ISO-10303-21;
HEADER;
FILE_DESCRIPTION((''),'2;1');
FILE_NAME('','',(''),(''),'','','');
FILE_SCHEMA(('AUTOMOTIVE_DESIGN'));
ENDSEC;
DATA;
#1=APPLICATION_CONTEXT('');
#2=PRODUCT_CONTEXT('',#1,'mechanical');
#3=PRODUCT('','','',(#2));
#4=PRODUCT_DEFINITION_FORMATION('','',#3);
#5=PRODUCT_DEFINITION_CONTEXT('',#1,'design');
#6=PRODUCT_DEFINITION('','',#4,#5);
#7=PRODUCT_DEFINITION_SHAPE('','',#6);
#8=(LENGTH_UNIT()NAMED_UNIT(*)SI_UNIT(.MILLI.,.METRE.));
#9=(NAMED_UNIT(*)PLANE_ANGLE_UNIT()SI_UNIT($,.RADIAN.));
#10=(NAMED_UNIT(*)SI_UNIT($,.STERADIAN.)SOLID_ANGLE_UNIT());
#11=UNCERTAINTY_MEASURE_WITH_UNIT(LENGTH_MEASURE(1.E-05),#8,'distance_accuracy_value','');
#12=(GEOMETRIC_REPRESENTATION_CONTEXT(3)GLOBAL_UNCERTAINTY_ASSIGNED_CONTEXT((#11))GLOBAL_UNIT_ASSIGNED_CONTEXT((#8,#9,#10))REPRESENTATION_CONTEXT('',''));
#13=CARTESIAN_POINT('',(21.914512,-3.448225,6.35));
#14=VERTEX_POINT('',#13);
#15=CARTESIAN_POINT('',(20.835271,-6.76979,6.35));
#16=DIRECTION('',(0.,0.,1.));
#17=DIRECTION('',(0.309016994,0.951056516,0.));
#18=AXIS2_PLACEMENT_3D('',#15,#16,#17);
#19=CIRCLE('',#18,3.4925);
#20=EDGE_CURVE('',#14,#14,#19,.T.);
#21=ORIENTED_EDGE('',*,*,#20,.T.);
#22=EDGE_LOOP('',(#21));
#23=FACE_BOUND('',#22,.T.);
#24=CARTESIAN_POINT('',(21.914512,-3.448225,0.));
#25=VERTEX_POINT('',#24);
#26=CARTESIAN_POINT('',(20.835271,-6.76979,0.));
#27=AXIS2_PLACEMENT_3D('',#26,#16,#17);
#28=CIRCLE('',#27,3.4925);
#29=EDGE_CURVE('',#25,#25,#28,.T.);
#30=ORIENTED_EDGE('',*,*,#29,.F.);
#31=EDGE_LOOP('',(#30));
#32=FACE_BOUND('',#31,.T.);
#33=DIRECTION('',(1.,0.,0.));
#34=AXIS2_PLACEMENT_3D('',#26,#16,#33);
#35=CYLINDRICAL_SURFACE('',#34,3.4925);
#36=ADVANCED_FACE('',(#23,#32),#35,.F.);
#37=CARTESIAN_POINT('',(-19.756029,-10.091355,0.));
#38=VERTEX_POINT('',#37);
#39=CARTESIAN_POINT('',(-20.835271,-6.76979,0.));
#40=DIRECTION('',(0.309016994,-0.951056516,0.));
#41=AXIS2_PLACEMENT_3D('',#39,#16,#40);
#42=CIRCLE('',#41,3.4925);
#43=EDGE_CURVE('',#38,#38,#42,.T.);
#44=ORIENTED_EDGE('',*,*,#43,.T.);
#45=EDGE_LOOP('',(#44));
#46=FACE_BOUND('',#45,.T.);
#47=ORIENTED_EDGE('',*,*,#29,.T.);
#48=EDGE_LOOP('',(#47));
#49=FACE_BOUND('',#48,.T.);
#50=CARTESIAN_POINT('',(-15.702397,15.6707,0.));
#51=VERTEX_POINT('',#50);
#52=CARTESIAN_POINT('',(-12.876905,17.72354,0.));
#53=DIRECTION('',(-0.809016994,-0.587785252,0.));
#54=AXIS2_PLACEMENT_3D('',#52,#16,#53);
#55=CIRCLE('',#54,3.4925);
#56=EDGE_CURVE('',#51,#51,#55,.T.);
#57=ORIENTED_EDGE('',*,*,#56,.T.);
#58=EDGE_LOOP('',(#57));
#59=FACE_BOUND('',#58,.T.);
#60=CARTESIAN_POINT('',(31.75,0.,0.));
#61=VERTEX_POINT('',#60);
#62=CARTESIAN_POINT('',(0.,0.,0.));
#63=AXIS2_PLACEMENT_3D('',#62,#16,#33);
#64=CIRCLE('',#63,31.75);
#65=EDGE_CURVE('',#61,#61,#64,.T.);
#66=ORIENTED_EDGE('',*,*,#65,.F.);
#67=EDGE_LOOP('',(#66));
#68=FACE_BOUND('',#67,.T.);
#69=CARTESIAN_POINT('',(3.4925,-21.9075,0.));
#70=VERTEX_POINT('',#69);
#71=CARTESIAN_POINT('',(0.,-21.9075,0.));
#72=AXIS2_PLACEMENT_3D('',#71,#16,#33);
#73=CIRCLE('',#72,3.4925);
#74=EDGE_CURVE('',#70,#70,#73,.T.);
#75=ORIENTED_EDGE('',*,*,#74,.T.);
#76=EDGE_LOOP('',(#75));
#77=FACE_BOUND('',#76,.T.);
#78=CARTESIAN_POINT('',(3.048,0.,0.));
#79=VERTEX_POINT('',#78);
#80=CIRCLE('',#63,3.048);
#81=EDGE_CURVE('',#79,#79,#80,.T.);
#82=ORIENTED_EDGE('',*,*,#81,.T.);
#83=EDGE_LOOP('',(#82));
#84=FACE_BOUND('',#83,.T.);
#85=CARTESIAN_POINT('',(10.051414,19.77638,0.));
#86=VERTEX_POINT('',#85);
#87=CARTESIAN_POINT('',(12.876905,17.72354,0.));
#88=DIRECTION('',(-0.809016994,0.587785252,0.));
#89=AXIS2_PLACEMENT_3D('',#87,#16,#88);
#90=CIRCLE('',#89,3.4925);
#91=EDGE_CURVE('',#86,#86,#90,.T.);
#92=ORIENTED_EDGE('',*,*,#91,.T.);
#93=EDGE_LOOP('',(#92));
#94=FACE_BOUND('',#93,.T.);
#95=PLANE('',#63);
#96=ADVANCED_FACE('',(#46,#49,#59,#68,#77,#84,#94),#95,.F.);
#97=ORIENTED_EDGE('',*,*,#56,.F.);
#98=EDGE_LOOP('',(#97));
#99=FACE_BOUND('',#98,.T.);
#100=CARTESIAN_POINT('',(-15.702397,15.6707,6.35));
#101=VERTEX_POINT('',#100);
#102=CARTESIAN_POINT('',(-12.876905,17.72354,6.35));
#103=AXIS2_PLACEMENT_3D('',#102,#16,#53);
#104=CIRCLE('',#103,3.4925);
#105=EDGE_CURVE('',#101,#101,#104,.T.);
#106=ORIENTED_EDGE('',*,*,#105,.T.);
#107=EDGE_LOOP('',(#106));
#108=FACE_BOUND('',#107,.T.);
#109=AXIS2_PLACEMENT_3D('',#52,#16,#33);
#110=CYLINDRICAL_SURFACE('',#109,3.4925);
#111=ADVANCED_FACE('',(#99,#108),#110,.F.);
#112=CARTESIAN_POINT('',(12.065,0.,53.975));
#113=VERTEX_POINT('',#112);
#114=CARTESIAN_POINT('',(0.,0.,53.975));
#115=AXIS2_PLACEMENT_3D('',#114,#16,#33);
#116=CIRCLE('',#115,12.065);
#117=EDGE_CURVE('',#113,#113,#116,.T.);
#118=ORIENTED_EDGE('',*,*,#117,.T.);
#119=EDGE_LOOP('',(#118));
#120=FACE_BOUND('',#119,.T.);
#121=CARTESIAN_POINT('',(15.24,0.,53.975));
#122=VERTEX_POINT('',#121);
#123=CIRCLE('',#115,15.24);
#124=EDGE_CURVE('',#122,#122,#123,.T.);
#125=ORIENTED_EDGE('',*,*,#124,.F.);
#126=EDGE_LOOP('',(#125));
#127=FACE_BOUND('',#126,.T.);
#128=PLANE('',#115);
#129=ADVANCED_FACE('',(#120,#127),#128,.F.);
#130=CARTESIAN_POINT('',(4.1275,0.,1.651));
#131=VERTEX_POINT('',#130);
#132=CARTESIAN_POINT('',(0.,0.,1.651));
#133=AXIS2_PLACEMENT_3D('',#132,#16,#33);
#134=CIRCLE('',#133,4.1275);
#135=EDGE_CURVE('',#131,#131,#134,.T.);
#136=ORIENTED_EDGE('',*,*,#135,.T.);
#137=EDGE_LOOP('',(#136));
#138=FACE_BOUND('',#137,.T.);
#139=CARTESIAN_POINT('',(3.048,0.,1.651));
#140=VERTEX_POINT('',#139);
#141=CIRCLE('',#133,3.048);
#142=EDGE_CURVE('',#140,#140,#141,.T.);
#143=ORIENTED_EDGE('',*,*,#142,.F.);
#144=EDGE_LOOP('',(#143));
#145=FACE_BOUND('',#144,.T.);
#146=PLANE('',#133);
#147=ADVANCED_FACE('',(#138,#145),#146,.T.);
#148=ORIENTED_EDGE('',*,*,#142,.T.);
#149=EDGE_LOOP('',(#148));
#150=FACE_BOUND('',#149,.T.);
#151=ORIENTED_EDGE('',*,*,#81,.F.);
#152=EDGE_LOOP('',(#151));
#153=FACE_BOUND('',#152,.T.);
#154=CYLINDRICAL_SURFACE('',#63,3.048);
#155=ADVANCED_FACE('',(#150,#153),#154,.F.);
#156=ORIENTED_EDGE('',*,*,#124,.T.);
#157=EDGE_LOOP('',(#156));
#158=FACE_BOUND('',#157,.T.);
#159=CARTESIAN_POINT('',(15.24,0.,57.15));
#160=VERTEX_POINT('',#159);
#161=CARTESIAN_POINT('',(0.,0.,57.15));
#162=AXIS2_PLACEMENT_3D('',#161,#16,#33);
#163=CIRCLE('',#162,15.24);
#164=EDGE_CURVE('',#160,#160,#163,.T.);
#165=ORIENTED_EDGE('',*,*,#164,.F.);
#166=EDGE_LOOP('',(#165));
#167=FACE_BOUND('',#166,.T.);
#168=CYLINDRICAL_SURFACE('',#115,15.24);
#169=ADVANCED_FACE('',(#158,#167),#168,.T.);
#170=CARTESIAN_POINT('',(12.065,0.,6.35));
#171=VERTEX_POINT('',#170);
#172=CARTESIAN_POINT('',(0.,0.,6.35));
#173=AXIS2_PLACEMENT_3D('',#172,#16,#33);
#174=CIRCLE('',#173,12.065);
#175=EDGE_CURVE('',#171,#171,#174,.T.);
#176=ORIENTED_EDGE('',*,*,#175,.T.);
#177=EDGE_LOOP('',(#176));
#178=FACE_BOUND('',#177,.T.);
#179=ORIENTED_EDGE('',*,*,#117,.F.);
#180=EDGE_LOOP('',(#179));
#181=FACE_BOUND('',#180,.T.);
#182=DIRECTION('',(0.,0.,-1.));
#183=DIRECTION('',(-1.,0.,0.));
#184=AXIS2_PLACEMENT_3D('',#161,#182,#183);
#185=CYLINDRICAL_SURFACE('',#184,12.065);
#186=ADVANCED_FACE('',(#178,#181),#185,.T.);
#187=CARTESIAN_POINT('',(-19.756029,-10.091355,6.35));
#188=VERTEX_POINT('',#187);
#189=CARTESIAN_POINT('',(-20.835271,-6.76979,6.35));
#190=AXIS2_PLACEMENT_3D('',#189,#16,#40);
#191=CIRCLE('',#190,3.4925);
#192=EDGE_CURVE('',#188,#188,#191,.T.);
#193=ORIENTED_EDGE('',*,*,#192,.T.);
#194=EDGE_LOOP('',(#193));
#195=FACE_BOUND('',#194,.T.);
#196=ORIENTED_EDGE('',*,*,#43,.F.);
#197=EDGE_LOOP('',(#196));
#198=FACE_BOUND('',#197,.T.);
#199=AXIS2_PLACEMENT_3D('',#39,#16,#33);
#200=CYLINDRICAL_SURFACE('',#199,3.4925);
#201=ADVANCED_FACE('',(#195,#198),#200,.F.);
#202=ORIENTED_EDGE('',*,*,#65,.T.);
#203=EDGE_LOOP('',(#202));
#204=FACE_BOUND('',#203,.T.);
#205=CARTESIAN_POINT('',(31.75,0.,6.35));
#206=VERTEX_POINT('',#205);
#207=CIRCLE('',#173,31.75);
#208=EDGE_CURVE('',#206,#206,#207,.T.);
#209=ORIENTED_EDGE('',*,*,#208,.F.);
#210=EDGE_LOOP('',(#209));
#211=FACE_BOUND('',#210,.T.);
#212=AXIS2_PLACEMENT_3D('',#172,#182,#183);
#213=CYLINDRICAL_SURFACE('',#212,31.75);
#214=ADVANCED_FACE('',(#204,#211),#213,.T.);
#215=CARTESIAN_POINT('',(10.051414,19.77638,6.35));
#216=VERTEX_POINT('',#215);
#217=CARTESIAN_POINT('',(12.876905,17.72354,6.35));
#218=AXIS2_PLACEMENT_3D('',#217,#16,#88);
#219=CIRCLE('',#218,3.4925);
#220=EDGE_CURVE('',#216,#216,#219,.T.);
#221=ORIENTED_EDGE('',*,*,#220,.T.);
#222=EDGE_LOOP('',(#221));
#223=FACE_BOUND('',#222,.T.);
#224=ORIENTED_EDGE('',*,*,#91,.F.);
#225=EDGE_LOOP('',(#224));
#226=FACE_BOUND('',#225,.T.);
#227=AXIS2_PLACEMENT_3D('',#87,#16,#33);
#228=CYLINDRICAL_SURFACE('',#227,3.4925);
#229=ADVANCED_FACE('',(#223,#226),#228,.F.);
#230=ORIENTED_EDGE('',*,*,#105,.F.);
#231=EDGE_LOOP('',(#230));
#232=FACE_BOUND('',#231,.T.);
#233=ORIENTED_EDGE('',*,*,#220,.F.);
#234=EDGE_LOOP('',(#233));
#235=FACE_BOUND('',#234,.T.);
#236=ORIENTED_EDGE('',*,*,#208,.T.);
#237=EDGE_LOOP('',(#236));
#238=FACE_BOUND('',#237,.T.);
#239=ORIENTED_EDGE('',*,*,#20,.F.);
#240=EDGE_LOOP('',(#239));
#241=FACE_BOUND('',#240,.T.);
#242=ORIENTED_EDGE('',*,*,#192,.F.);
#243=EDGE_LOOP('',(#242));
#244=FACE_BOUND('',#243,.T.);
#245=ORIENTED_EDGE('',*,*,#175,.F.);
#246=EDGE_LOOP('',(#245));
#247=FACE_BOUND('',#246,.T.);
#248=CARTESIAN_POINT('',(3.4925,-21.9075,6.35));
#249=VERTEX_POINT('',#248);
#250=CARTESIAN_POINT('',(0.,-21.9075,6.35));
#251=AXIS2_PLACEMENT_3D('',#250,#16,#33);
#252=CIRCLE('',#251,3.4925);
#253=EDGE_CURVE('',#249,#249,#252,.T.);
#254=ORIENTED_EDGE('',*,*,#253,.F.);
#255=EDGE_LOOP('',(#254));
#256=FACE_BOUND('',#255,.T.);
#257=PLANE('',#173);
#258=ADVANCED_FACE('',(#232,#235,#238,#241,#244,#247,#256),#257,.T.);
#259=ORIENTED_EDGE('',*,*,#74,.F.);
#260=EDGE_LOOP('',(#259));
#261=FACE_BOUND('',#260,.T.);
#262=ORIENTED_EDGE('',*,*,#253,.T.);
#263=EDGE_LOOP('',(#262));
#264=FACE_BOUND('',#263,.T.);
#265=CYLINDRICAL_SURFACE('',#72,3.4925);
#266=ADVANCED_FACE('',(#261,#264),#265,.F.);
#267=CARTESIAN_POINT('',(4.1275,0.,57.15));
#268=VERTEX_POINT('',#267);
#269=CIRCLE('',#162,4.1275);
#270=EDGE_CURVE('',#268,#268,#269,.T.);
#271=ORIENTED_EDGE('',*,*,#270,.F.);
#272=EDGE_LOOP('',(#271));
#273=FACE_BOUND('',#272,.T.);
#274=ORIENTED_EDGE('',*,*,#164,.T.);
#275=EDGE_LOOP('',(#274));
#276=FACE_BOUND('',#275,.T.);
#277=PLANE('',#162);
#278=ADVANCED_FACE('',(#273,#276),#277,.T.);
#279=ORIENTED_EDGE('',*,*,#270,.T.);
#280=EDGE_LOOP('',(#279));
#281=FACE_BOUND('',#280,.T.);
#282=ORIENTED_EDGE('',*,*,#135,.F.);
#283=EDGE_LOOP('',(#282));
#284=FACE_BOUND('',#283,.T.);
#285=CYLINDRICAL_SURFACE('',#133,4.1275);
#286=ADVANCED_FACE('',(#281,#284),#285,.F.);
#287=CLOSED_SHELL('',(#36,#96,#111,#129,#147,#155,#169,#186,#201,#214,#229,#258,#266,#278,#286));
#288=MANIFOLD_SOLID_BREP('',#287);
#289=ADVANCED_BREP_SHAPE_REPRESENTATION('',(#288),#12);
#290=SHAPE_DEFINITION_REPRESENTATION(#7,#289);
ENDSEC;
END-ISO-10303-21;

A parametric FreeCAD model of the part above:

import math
import FreeCAD as App
import Part
import Sketcher
from FreeCAD import Vector
Q = App.Units.Quantity

doc = App.newDocument("Part")
body = doc.addObject("PartDesign::Body", "Body")

# Sketch on XY plane
sketch1 = body.newObject("Sketcher::SketchObject", "Sketch")
sketch1.AttachmentSupport = (doc.getObject("XY_Plane"), [""])
sketch1.MapMode = "FlatFace"
sketch1.addGeometry(Part.Circle(Vector(0, 0, 0), Vector(0, 0, 1), 32), False)
sketch1.addConstraint(Sketcher.Constraint("Coincident", 0, 3, -1, 1))
sketch1.addConstraint(Sketcher.Constraint("Diameter", 0, Q("2.5 in")))
pad1 = body.newObject("PartDesign::Pad", "Pad")
pad1.Profile = sketch1
pad1.Length = Q("0.25 in")

# Sketch on XY plane
sketch2 = body.newObject("Sketcher::SketchObject", "Sketch001")
sketch2.AttachmentSupport = (doc.getObject("XY_Plane"), [""])
sketch2.MapMode = "FlatFace"
sketch2.AttachmentOffset = App.Placement(Vector(0, 0, 0.25 * 25.4), App.Rotation())
sketch2.addGeometry(Part.Circle(Vector(0, 0, 0), Vector(0, 0, 1), 12), False)
sketch2.addConstraint(Sketcher.Constraint("Coincident", 0, 3, -1, 1))
sketch2.addConstraint(Sketcher.Constraint("Diameter", 0, Q("0.95 in")))
pad2 = body.newObject("PartDesign::Pad", "Pad001")
pad2.Profile = sketch2
pad2.Length = Q("2 in")

# Sketch on XY plane
sketch3 = body.newObject("Sketcher::SketchObject", "Sketch002")
sketch3.AttachmentSupport = (doc.getObject("XY_Plane"), [""])
sketch3.MapMode = "FlatFace"
sketch3.AttachmentOffset = App.Placement(Vector(0, 0, 2.125 * 25.4), App.Rotation())
sketch3.addGeometry(Part.Circle(Vector(0, 0, 0), Vector(0, 0, 1), 15), False)
sketch3.addGeometry(Part.Circle(Vector(0, 0, 0), Vector(0, 0, 1), 12), False)
sketch3.addConstraint(Sketcher.Constraint("Coincident", 0, 3, -1, 1))
sketch3.addConstraint(Sketcher.Constraint("Coincident", 1, 3, -1, 1))
sketch3.addConstraint(Sketcher.Constraint("Diameter", 0, Q("1.2 in")))
sketch3.addConstraint(Sketcher.Constraint("Diameter", 1, Q("0.95 in")))
pad3 = body.newObject("PartDesign::Pad", "Pad002")
pad3.Profile = sketch3
pad3.Length = Q("0.125 in")

# Sketch on XY plane
sketch4 = body.newObject("Sketcher::SketchObject", "Sketch003")
sketch4.AttachmentSupport = (doc.getObject("XY_Plane"), [""])
sketch4.MapMode = "FlatFace"
sketch4.AttachmentOffset = App.Placement(Vector(0, 0, 0.25 * 25.4), App.Rotation())
sketch4.addGeometry(Part.ArcOfCircle(Part.Circle(Vector(0, -21.9, 0), Vector(0, 0, 1), 3.5), math.radians(0), math.radians(90)), False)
sketch4.addGeometry(Part.ArcOfCircle(Part.Circle(Vector(0, -21.9, 0), Vector(0, 0, 1), 3.5), math.radians(90), math.radians(270)), False)
sketch4.addGeometry(Part.ArcOfCircle(Part.Circle(Vector(0, -21.9, 0), Vector(0, 0, 1), 3.5), math.radians(-90), math.radians(0)), False)
sketch4.addConstraint(Sketcher.Constraint("Tangent", 0, 2, 1, 1))
sketch4.addConstraint(Sketcher.Constraint("Tangent", 1, 2, 2, 1))
sketch4.addConstraint(Sketcher.Constraint("Tangent", 2, 2, 0, 1))
sketch4.addConstraint(Sketcher.Constraint("PointOnObject", 0, 3, -2))
sketch4.addConstraint(Sketcher.Constraint("PointOnObject", 0, 2, -2))
sketch4.addConstraint(Sketcher.Constraint("PointOnObject", 1, 2, -2))
sketch4.addConstraint(Sketcher.Constraint("Horizontal", 1, 3, 2, 2))
sketch4.addConstraint(Sketcher.Constraint("DistanceY", 1, 2, -1, 1, Q("1 in")))
sketch4.addConstraint(Sketcher.Constraint("Radius", 0, Q("0.1375 in")))
pocket1 = body.newObject("PartDesign::Pocket", "Pocket")
pocket1.Profile = sketch4
pocket1.Type = "ThroughAll"
doc.recompute()

polarpattern = body.newObject("PartDesign::PolarPattern", "PolarPattern")
polarpattern.Originals = [pocket1]
polarpattern.Axis = (doc.getObject("Z_Axis"), [""])
polarpattern.Angle = 360
polarpattern.Occurrences = 5
body.Tip = polarpattern

# Sketch on XY plane
sketch5 = body.newObject("Sketcher::SketchObject", "Sketch004")
sketch5.AttachmentSupport = (doc.getObject("XY_Plane"), [""])
sketch5.MapMode = "FlatFace"
sketch5.AttachmentOffset = App.Placement(Vector(0, 0, 2.25 * 25.4), App.Rotation())
sketch5.addGeometry(Part.Circle(Vector(0, 0, 0), Vector(0, 0, 1), 3), False)
sketch5.addConstraint(Sketcher.Constraint("Coincident", 0, 3, -1, 1))
sketch5.addConstraint(Sketcher.Constraint("Diameter", 0, Q("0.24 in")))
pocket2 = body.newObject("PartDesign::Pocket", "Pocket001")
pocket2.Profile = sketch5
pocket2.Type = "ThroughAll"

# Sketch on XY plane
sketch6 = body.newObject("Sketcher::SketchObject", "Sketch005")
sketch6.AttachmentSupport = (doc.getObject("XY_Plane"), [""])
sketch6.MapMode = "FlatFace"
sketch6.AttachmentOffset = App.Placement(Vector(0, 0, 2.25 * 25.4), App.Rotation())
sketch6.addGeometry(Part.Circle(Vector(0, 0, 0), Vector(0, 0, 1), 4.1), False)
sketch6.addGeometry(Part.Circle(Vector(0, 0, 0), Vector(0, 0, 1), 3), False)
sketch6.addConstraint(Sketcher.Constraint("Coincident", 0, 3, -1, 1))
sketch6.addConstraint(Sketcher.Constraint("Coincident", 1, 3, -1, 1))
sketch6.addConstraint(Sketcher.Constraint("Diameter", 1, Q("0.24 in")))
sketch6.addConstraint(Sketcher.Constraint("Diameter", 0, Q("0.325 in")))
pocket3 = body.newObject("PartDesign::Pocket", "Pocket002")
pocket3.Profile = sketch6
pocket3.Length = Q("2.185 in")

doc.recompute()
